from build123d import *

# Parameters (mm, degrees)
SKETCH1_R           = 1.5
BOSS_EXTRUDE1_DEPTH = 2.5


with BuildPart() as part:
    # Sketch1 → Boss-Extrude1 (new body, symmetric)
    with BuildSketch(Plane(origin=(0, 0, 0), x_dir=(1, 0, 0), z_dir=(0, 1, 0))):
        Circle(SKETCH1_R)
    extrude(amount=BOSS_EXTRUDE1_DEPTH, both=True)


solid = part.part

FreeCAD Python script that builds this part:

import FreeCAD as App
import Part
import Sketcher

doc = App.newDocument("Part")
body = doc.addObject("PartDesign::Body", "Body")

sketch1 = body.newObject("Sketcher::SketchObject", "Sketch")
sketch1.AttachmentSupport = (doc.getObject("XZ_Plane"), [""])
sketch1.MapMode = "FlatFace"
sketch1.addGeometry(Part.Circle(App.Vector(0, 0, 0), App.Vector(0, 0, 1), 1.5), False)
sketch1.addConstraint(Sketcher.Constraint("Coincident", 0, 3, -1, 1))
sketch1.addConstraint(Sketcher.Constraint("Diameter", 0, 3.0))
pad1 = body.newObject("PartDesign::Pad", "Pad")
pad1.Profile = sketch1
pad1.Length = 5
pad1.Midplane = True

doc.recompute()
